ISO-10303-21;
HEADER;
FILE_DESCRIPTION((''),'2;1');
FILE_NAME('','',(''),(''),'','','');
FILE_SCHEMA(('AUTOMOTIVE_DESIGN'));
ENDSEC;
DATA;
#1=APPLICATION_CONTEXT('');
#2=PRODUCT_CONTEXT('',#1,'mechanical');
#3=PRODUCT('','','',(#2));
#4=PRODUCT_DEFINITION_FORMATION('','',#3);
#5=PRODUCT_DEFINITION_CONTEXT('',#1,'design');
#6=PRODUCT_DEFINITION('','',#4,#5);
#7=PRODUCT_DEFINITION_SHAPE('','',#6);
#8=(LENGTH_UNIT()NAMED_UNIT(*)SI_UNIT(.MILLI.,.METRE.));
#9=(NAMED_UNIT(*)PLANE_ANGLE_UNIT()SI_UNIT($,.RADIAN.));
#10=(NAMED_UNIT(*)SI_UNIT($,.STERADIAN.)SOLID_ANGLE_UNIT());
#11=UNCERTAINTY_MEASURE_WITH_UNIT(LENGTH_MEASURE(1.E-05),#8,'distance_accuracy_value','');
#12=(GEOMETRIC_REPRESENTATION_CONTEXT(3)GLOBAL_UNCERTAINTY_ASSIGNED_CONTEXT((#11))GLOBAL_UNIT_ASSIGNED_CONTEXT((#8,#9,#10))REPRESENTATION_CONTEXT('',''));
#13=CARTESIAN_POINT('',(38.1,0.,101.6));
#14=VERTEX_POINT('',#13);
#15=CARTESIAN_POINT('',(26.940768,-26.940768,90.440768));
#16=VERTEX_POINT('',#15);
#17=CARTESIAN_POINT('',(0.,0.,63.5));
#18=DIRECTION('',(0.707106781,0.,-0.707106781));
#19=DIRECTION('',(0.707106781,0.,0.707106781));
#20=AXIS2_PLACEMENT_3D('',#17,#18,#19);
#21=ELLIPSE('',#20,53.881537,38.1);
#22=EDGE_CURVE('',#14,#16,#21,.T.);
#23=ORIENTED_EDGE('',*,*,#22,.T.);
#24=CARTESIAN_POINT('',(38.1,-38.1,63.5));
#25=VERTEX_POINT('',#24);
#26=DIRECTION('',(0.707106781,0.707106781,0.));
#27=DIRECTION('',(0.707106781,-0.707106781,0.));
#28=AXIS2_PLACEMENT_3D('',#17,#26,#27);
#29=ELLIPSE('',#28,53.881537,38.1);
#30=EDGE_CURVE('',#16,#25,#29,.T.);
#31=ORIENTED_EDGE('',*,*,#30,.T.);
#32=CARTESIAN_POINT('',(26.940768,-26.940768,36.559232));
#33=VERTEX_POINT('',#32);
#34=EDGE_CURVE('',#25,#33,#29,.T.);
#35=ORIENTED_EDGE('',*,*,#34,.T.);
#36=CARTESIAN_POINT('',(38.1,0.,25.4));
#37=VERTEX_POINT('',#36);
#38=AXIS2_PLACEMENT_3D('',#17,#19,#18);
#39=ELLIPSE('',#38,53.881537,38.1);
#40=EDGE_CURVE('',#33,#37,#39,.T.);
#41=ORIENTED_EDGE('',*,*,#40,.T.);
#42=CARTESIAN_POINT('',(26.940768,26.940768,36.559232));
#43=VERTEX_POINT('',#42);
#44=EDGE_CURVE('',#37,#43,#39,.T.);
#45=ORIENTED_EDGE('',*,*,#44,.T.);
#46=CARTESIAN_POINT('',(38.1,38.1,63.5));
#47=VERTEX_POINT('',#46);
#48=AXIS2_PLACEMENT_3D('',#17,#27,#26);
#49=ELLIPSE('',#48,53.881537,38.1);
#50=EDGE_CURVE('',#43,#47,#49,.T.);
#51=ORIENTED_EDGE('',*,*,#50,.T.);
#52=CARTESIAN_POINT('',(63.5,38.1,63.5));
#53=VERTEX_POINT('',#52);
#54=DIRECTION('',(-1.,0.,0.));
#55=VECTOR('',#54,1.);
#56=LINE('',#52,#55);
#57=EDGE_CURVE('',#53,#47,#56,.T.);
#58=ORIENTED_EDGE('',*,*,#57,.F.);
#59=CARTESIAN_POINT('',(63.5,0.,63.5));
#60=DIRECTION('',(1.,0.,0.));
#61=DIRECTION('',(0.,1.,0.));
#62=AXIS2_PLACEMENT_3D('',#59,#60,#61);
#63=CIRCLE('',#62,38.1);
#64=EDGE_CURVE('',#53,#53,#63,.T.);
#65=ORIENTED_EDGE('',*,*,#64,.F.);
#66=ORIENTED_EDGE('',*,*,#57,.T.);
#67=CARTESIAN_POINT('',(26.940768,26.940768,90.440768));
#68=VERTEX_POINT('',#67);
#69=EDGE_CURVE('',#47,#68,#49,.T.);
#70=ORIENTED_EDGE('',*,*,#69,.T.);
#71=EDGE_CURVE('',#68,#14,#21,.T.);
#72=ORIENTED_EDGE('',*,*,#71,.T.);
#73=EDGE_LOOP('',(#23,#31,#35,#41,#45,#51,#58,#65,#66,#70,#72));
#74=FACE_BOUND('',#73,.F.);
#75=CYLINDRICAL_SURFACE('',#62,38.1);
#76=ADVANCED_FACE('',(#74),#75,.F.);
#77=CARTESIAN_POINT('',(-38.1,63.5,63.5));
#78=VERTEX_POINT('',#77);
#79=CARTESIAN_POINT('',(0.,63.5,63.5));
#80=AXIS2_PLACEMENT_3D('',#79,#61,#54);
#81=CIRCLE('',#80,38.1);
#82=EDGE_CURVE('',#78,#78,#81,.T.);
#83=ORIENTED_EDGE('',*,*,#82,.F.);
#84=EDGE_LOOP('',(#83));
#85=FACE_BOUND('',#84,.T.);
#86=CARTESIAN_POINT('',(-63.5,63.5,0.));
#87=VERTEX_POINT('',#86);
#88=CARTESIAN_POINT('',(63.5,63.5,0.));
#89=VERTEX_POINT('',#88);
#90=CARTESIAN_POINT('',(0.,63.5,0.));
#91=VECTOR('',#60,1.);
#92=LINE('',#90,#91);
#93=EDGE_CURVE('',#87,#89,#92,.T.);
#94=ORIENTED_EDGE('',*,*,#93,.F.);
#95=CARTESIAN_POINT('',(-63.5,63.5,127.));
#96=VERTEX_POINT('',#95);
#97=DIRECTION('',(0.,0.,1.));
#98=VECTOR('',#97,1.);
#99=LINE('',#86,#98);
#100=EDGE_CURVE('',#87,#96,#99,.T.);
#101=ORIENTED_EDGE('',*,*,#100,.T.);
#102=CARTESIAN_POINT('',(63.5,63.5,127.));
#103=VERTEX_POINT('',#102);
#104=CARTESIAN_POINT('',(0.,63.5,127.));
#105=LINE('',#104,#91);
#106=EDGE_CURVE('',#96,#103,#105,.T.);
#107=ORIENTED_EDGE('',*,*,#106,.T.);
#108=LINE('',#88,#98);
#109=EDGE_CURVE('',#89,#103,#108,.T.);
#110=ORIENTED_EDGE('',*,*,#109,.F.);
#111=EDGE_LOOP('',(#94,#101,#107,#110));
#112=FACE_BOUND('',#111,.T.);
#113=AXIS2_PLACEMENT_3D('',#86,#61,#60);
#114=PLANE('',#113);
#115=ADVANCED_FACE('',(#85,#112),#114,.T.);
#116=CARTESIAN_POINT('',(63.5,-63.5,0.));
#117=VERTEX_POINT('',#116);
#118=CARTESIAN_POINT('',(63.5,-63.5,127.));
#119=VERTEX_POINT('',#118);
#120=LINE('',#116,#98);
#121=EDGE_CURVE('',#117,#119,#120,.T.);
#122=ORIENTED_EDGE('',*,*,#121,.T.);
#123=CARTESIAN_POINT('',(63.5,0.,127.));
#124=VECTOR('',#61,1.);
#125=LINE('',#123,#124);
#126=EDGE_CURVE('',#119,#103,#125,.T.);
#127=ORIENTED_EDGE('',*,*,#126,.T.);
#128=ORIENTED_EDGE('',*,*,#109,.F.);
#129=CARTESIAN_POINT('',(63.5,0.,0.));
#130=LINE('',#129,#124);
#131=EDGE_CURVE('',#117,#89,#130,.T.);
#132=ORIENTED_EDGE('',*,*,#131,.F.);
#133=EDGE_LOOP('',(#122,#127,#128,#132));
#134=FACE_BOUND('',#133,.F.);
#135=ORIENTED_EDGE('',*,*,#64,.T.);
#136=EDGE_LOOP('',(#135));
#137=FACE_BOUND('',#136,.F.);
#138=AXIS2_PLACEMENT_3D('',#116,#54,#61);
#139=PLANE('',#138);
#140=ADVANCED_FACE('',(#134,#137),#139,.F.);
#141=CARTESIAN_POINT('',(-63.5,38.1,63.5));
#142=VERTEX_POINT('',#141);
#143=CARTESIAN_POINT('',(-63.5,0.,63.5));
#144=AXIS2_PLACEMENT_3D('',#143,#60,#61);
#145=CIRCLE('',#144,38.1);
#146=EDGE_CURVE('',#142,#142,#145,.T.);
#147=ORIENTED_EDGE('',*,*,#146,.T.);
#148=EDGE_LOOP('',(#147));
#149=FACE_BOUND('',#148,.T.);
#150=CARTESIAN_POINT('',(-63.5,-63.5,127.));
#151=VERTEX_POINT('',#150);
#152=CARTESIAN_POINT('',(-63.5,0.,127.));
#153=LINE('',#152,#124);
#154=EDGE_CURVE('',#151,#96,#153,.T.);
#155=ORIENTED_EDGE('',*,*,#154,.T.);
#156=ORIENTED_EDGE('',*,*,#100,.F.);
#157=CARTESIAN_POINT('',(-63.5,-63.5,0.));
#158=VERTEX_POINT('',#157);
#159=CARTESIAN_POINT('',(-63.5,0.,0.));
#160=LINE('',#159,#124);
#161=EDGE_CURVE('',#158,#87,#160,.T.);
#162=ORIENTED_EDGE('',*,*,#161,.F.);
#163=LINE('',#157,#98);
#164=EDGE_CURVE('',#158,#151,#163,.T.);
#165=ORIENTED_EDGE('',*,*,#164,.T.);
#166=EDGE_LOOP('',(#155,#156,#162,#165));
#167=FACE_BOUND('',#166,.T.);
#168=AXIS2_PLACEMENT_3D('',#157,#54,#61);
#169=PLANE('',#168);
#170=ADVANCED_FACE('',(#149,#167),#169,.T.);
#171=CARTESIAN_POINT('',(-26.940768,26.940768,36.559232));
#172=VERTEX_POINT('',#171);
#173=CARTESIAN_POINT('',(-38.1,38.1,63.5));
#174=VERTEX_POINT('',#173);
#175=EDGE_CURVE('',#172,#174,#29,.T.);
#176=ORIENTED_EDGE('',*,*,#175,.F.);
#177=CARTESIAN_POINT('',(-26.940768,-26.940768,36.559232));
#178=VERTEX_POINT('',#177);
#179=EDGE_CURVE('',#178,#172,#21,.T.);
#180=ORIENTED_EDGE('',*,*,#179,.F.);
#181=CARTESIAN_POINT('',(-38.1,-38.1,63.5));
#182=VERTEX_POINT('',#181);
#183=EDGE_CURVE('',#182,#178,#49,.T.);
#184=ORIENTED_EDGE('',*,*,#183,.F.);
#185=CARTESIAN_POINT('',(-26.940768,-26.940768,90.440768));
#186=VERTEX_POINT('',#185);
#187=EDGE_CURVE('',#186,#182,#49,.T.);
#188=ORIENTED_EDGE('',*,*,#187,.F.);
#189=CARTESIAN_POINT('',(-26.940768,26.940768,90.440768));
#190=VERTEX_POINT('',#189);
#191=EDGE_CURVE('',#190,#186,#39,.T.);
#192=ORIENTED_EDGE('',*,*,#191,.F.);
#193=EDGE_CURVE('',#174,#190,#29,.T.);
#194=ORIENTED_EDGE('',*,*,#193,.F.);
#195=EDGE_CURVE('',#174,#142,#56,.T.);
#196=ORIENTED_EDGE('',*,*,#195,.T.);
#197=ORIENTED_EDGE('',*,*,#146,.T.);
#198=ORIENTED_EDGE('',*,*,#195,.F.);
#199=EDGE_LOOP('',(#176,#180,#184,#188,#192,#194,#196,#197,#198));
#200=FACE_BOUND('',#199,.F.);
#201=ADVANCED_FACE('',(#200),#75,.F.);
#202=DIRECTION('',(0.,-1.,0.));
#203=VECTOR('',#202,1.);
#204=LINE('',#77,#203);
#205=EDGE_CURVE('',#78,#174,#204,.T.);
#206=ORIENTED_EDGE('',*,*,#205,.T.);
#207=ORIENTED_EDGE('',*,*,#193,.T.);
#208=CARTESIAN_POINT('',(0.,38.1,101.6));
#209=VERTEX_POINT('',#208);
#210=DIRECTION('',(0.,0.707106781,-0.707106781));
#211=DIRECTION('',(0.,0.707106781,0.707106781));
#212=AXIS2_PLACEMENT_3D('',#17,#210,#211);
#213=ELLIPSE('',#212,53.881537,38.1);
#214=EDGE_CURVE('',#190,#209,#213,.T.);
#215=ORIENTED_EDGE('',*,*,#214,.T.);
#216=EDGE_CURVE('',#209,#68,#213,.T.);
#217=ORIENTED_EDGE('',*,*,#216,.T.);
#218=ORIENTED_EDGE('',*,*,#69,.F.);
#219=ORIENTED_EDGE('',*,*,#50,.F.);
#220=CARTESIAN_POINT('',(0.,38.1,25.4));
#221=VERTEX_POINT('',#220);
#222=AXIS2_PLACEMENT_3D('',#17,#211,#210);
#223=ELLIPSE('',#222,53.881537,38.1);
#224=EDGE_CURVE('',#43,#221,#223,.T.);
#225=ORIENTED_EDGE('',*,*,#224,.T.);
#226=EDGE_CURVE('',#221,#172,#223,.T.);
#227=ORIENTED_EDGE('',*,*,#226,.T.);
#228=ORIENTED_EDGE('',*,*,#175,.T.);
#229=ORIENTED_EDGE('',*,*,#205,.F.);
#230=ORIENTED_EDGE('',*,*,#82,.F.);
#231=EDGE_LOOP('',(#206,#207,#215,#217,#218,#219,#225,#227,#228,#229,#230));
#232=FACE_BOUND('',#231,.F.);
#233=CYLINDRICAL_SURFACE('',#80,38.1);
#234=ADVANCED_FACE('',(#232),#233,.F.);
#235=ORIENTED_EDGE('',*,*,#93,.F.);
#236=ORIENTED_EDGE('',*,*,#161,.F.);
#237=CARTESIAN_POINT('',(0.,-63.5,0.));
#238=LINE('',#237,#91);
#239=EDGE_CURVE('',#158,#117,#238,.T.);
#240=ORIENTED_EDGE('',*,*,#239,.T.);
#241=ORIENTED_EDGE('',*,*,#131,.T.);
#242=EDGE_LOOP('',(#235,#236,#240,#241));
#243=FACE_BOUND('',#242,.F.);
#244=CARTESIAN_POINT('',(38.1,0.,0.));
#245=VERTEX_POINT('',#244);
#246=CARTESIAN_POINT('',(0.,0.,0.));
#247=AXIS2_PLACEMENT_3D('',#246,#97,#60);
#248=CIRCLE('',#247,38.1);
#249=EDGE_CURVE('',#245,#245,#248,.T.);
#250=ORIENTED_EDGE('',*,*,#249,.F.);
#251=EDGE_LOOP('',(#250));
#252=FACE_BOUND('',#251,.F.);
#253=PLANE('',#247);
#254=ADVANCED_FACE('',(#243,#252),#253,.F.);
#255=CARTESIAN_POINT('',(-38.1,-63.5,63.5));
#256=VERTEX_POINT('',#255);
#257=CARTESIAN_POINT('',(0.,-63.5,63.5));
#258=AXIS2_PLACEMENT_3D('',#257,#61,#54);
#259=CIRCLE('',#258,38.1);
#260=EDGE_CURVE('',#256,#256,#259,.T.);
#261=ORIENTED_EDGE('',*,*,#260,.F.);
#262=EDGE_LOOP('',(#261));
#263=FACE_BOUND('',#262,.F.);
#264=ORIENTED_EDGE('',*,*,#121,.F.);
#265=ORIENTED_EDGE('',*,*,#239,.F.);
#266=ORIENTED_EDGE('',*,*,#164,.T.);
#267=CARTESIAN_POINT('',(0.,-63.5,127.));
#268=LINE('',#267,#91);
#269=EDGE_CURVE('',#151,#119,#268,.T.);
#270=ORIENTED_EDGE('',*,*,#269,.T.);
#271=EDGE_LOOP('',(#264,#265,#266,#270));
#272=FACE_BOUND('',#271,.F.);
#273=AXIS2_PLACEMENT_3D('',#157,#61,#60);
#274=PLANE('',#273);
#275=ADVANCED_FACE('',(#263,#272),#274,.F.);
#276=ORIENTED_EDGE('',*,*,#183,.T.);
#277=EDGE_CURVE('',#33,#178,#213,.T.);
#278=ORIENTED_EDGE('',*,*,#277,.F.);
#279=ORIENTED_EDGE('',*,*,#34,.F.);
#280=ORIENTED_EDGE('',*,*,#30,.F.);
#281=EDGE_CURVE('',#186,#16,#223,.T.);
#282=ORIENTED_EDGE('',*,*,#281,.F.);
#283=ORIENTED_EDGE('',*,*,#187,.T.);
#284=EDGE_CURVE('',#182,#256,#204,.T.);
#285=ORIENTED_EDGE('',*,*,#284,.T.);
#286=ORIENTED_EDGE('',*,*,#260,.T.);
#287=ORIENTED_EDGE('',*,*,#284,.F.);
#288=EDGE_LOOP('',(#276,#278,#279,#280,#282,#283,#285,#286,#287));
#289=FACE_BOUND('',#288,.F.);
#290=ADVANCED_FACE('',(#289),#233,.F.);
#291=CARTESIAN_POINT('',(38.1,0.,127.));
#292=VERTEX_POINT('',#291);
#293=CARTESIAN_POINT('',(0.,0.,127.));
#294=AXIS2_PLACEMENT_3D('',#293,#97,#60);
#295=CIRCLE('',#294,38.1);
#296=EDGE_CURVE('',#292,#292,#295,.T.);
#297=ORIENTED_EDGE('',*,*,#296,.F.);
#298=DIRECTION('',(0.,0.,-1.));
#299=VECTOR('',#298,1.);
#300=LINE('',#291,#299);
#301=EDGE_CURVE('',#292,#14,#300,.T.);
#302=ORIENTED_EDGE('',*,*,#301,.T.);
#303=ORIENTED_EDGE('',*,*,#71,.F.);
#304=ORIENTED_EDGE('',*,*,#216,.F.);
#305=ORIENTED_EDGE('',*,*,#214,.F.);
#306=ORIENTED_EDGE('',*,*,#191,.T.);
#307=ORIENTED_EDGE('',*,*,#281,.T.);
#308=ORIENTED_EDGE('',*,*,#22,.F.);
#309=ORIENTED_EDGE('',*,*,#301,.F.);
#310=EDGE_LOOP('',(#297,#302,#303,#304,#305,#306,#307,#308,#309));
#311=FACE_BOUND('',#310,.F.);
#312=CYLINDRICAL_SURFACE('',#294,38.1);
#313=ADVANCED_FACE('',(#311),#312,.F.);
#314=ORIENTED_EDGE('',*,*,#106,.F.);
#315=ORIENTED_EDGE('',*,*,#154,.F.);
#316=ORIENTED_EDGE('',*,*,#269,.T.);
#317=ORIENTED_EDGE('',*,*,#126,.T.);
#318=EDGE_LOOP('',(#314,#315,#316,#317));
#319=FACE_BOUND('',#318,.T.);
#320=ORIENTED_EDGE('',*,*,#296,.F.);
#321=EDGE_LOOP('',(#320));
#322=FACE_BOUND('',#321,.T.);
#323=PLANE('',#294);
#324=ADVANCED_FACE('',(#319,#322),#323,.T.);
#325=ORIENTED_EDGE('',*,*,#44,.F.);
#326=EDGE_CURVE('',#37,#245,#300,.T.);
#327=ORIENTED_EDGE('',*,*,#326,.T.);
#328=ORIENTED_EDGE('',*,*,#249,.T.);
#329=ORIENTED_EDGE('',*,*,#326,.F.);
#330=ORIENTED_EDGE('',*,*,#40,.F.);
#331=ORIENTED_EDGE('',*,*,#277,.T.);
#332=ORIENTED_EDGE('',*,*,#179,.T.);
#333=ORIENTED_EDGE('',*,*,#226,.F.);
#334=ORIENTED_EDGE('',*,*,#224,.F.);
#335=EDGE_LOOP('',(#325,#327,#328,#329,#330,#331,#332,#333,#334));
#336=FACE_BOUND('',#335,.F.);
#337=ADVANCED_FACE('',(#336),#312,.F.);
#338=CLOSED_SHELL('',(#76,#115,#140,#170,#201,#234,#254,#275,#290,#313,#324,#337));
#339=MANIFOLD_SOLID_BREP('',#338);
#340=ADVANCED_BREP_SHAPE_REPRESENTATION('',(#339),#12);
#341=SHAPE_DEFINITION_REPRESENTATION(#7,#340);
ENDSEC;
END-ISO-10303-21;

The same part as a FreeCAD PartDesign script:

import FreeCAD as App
import Part
import Sketcher

V = App.Vector
Q = App.Units.Quantity

doc = App.newDocument("Part")
body = doc.addObject("PartDesign::Body", "Body")

# Sketch on XY plane
sketch1 = body.newObject("Sketcher::SketchObject", "Sketch")
sketch1.AttachmentSupport = (doc.getObject("XY_Plane"), [""])
sketch1.MapMode = "FlatFace"
sketch1.addGeometry([
    Part.LineSegment(V(-64, 64, 0), V(-64, -64, 0)),
    Part.LineSegment(V(-64, -64, 0), V(64, -64, 0)),
    Part.LineSegment(V(64, -64, 0), V(64, 64, 0)),
    Part.LineSegment(V(64, 64, 0), V(-64, 64, 0)),
], False)
sketch1.addConstraint([
    Sketcher.Constraint("Coincident", 0, 2, 1, 1),
    Sketcher.Constraint("Coincident", 1, 2, 2, 1),
    Sketcher.Constraint("Coincident", 2, 2, 3, 1),
    Sketcher.Constraint("Coincident", 3, 2, 0, 1),
    Sketcher.Constraint("Vertical", 0),
    Sketcher.Constraint("Horizontal", 1),
    Sketcher.Constraint("Vertical", 2),
    Sketcher.Constraint("Horizontal", 3),
    Sketcher.Constraint("Symmetric", 0, 2, 2, 2, -1, 1),
    Sketcher.Constraint("Equal", 3, 0),
    Sketcher.Constraint("DistanceX", 1, 1, 1, 2, Q("5 in")),
])
pad1 = body.newObject("PartDesign::Pad", "Pad")
pad1.Profile = sketch1
pad1.Length = Q("5 in")

# Sketch on YZ plane
sketch2 = body.newObject("Sketcher::SketchObject", "Sketch001")
sketch2.AttachmentSupport = (doc.getObject("YZ_Plane"), [""])
sketch2.MapMode = "FlatFace"
sketch2.AttachmentOffset = App.Placement(V(0, 0, 2.5 * 25.4), App.Rotation())
sketch2.addGeometry(Part.Circle(V(0, 64, 0), V(0, 0, 1), 38), False)
sketch2.addConstraint([
    Sketcher.Constraint("PointOnObject", 0, 3, -2),
    Sketcher.Constraint("Diameter", 0, Q("3 in")),
    Sketcher.Constraint("DistanceY", -1, 1, 0, 3, Q("2.5 in")),
])
pocket1 = body.newObject("PartDesign::Pocket", "Pocket")
pocket1.Profile = sketch2
pocket1.Length = Q("5 in")

# Sketch on XZ plane
sketch3 = body.newObject("Sketcher::SketchObject", "Sketch002")
sketch3.AttachmentSupport = (doc.getObject("XZ_Plane"), [""])
sketch3.MapMode = "FlatFace"
sketch3.AttachmentOffset = App.Placement(V(0, 0, -2.5 * 25.4), App.Rotation())
sketch3.addGeometry(Part.Circle(V(0, 64, 0), V(0, 0, 1), 38), False)
sketch3.addConstraint([
    Sketcher.Constraint("PointOnObject", 0, 3, -2),
    Sketcher.Constraint("Diameter", 0, Q("3 in")),
    Sketcher.Constraint("DistanceY", -1, 1, 0, 3, Q("2.5 in")),
])
pocket2 = body.newObject("PartDesign::Pocket", "Pocket001")
pocket2.Profile = sketch3
pocket2.Length = Q("5 in")
pocket2.Reversed = True

# Sketch on XY plane
sketch4 = body.newObject("Sketcher::SketchObject", "Sketch003")
sketch4.AttachmentSupport = (doc.getObject("XY_Plane"), [""])
sketch4.MapMode = "FlatFace"
sketch4.AttachmentOffset = App.Placement(V(0, 0, 5 * 25.4), App.Rotation())
sketch4.addGeometry(Part.Circle(V(0, 0, 0), V(0, 0, 1), 38), False)
sketch4.addConstraint([
    Sketcher.Constraint("Coincident", 0, 3, -1, 1),
    Sketcher.Constraint("Diameter", 0, Q("3 in")),
])
pocket3 = body.newObject("PartDesign::Pocket", "Pocket002")
pocket3.Profile = sketch4
pocket3.Length = Q("5 in")

doc.recompute()
